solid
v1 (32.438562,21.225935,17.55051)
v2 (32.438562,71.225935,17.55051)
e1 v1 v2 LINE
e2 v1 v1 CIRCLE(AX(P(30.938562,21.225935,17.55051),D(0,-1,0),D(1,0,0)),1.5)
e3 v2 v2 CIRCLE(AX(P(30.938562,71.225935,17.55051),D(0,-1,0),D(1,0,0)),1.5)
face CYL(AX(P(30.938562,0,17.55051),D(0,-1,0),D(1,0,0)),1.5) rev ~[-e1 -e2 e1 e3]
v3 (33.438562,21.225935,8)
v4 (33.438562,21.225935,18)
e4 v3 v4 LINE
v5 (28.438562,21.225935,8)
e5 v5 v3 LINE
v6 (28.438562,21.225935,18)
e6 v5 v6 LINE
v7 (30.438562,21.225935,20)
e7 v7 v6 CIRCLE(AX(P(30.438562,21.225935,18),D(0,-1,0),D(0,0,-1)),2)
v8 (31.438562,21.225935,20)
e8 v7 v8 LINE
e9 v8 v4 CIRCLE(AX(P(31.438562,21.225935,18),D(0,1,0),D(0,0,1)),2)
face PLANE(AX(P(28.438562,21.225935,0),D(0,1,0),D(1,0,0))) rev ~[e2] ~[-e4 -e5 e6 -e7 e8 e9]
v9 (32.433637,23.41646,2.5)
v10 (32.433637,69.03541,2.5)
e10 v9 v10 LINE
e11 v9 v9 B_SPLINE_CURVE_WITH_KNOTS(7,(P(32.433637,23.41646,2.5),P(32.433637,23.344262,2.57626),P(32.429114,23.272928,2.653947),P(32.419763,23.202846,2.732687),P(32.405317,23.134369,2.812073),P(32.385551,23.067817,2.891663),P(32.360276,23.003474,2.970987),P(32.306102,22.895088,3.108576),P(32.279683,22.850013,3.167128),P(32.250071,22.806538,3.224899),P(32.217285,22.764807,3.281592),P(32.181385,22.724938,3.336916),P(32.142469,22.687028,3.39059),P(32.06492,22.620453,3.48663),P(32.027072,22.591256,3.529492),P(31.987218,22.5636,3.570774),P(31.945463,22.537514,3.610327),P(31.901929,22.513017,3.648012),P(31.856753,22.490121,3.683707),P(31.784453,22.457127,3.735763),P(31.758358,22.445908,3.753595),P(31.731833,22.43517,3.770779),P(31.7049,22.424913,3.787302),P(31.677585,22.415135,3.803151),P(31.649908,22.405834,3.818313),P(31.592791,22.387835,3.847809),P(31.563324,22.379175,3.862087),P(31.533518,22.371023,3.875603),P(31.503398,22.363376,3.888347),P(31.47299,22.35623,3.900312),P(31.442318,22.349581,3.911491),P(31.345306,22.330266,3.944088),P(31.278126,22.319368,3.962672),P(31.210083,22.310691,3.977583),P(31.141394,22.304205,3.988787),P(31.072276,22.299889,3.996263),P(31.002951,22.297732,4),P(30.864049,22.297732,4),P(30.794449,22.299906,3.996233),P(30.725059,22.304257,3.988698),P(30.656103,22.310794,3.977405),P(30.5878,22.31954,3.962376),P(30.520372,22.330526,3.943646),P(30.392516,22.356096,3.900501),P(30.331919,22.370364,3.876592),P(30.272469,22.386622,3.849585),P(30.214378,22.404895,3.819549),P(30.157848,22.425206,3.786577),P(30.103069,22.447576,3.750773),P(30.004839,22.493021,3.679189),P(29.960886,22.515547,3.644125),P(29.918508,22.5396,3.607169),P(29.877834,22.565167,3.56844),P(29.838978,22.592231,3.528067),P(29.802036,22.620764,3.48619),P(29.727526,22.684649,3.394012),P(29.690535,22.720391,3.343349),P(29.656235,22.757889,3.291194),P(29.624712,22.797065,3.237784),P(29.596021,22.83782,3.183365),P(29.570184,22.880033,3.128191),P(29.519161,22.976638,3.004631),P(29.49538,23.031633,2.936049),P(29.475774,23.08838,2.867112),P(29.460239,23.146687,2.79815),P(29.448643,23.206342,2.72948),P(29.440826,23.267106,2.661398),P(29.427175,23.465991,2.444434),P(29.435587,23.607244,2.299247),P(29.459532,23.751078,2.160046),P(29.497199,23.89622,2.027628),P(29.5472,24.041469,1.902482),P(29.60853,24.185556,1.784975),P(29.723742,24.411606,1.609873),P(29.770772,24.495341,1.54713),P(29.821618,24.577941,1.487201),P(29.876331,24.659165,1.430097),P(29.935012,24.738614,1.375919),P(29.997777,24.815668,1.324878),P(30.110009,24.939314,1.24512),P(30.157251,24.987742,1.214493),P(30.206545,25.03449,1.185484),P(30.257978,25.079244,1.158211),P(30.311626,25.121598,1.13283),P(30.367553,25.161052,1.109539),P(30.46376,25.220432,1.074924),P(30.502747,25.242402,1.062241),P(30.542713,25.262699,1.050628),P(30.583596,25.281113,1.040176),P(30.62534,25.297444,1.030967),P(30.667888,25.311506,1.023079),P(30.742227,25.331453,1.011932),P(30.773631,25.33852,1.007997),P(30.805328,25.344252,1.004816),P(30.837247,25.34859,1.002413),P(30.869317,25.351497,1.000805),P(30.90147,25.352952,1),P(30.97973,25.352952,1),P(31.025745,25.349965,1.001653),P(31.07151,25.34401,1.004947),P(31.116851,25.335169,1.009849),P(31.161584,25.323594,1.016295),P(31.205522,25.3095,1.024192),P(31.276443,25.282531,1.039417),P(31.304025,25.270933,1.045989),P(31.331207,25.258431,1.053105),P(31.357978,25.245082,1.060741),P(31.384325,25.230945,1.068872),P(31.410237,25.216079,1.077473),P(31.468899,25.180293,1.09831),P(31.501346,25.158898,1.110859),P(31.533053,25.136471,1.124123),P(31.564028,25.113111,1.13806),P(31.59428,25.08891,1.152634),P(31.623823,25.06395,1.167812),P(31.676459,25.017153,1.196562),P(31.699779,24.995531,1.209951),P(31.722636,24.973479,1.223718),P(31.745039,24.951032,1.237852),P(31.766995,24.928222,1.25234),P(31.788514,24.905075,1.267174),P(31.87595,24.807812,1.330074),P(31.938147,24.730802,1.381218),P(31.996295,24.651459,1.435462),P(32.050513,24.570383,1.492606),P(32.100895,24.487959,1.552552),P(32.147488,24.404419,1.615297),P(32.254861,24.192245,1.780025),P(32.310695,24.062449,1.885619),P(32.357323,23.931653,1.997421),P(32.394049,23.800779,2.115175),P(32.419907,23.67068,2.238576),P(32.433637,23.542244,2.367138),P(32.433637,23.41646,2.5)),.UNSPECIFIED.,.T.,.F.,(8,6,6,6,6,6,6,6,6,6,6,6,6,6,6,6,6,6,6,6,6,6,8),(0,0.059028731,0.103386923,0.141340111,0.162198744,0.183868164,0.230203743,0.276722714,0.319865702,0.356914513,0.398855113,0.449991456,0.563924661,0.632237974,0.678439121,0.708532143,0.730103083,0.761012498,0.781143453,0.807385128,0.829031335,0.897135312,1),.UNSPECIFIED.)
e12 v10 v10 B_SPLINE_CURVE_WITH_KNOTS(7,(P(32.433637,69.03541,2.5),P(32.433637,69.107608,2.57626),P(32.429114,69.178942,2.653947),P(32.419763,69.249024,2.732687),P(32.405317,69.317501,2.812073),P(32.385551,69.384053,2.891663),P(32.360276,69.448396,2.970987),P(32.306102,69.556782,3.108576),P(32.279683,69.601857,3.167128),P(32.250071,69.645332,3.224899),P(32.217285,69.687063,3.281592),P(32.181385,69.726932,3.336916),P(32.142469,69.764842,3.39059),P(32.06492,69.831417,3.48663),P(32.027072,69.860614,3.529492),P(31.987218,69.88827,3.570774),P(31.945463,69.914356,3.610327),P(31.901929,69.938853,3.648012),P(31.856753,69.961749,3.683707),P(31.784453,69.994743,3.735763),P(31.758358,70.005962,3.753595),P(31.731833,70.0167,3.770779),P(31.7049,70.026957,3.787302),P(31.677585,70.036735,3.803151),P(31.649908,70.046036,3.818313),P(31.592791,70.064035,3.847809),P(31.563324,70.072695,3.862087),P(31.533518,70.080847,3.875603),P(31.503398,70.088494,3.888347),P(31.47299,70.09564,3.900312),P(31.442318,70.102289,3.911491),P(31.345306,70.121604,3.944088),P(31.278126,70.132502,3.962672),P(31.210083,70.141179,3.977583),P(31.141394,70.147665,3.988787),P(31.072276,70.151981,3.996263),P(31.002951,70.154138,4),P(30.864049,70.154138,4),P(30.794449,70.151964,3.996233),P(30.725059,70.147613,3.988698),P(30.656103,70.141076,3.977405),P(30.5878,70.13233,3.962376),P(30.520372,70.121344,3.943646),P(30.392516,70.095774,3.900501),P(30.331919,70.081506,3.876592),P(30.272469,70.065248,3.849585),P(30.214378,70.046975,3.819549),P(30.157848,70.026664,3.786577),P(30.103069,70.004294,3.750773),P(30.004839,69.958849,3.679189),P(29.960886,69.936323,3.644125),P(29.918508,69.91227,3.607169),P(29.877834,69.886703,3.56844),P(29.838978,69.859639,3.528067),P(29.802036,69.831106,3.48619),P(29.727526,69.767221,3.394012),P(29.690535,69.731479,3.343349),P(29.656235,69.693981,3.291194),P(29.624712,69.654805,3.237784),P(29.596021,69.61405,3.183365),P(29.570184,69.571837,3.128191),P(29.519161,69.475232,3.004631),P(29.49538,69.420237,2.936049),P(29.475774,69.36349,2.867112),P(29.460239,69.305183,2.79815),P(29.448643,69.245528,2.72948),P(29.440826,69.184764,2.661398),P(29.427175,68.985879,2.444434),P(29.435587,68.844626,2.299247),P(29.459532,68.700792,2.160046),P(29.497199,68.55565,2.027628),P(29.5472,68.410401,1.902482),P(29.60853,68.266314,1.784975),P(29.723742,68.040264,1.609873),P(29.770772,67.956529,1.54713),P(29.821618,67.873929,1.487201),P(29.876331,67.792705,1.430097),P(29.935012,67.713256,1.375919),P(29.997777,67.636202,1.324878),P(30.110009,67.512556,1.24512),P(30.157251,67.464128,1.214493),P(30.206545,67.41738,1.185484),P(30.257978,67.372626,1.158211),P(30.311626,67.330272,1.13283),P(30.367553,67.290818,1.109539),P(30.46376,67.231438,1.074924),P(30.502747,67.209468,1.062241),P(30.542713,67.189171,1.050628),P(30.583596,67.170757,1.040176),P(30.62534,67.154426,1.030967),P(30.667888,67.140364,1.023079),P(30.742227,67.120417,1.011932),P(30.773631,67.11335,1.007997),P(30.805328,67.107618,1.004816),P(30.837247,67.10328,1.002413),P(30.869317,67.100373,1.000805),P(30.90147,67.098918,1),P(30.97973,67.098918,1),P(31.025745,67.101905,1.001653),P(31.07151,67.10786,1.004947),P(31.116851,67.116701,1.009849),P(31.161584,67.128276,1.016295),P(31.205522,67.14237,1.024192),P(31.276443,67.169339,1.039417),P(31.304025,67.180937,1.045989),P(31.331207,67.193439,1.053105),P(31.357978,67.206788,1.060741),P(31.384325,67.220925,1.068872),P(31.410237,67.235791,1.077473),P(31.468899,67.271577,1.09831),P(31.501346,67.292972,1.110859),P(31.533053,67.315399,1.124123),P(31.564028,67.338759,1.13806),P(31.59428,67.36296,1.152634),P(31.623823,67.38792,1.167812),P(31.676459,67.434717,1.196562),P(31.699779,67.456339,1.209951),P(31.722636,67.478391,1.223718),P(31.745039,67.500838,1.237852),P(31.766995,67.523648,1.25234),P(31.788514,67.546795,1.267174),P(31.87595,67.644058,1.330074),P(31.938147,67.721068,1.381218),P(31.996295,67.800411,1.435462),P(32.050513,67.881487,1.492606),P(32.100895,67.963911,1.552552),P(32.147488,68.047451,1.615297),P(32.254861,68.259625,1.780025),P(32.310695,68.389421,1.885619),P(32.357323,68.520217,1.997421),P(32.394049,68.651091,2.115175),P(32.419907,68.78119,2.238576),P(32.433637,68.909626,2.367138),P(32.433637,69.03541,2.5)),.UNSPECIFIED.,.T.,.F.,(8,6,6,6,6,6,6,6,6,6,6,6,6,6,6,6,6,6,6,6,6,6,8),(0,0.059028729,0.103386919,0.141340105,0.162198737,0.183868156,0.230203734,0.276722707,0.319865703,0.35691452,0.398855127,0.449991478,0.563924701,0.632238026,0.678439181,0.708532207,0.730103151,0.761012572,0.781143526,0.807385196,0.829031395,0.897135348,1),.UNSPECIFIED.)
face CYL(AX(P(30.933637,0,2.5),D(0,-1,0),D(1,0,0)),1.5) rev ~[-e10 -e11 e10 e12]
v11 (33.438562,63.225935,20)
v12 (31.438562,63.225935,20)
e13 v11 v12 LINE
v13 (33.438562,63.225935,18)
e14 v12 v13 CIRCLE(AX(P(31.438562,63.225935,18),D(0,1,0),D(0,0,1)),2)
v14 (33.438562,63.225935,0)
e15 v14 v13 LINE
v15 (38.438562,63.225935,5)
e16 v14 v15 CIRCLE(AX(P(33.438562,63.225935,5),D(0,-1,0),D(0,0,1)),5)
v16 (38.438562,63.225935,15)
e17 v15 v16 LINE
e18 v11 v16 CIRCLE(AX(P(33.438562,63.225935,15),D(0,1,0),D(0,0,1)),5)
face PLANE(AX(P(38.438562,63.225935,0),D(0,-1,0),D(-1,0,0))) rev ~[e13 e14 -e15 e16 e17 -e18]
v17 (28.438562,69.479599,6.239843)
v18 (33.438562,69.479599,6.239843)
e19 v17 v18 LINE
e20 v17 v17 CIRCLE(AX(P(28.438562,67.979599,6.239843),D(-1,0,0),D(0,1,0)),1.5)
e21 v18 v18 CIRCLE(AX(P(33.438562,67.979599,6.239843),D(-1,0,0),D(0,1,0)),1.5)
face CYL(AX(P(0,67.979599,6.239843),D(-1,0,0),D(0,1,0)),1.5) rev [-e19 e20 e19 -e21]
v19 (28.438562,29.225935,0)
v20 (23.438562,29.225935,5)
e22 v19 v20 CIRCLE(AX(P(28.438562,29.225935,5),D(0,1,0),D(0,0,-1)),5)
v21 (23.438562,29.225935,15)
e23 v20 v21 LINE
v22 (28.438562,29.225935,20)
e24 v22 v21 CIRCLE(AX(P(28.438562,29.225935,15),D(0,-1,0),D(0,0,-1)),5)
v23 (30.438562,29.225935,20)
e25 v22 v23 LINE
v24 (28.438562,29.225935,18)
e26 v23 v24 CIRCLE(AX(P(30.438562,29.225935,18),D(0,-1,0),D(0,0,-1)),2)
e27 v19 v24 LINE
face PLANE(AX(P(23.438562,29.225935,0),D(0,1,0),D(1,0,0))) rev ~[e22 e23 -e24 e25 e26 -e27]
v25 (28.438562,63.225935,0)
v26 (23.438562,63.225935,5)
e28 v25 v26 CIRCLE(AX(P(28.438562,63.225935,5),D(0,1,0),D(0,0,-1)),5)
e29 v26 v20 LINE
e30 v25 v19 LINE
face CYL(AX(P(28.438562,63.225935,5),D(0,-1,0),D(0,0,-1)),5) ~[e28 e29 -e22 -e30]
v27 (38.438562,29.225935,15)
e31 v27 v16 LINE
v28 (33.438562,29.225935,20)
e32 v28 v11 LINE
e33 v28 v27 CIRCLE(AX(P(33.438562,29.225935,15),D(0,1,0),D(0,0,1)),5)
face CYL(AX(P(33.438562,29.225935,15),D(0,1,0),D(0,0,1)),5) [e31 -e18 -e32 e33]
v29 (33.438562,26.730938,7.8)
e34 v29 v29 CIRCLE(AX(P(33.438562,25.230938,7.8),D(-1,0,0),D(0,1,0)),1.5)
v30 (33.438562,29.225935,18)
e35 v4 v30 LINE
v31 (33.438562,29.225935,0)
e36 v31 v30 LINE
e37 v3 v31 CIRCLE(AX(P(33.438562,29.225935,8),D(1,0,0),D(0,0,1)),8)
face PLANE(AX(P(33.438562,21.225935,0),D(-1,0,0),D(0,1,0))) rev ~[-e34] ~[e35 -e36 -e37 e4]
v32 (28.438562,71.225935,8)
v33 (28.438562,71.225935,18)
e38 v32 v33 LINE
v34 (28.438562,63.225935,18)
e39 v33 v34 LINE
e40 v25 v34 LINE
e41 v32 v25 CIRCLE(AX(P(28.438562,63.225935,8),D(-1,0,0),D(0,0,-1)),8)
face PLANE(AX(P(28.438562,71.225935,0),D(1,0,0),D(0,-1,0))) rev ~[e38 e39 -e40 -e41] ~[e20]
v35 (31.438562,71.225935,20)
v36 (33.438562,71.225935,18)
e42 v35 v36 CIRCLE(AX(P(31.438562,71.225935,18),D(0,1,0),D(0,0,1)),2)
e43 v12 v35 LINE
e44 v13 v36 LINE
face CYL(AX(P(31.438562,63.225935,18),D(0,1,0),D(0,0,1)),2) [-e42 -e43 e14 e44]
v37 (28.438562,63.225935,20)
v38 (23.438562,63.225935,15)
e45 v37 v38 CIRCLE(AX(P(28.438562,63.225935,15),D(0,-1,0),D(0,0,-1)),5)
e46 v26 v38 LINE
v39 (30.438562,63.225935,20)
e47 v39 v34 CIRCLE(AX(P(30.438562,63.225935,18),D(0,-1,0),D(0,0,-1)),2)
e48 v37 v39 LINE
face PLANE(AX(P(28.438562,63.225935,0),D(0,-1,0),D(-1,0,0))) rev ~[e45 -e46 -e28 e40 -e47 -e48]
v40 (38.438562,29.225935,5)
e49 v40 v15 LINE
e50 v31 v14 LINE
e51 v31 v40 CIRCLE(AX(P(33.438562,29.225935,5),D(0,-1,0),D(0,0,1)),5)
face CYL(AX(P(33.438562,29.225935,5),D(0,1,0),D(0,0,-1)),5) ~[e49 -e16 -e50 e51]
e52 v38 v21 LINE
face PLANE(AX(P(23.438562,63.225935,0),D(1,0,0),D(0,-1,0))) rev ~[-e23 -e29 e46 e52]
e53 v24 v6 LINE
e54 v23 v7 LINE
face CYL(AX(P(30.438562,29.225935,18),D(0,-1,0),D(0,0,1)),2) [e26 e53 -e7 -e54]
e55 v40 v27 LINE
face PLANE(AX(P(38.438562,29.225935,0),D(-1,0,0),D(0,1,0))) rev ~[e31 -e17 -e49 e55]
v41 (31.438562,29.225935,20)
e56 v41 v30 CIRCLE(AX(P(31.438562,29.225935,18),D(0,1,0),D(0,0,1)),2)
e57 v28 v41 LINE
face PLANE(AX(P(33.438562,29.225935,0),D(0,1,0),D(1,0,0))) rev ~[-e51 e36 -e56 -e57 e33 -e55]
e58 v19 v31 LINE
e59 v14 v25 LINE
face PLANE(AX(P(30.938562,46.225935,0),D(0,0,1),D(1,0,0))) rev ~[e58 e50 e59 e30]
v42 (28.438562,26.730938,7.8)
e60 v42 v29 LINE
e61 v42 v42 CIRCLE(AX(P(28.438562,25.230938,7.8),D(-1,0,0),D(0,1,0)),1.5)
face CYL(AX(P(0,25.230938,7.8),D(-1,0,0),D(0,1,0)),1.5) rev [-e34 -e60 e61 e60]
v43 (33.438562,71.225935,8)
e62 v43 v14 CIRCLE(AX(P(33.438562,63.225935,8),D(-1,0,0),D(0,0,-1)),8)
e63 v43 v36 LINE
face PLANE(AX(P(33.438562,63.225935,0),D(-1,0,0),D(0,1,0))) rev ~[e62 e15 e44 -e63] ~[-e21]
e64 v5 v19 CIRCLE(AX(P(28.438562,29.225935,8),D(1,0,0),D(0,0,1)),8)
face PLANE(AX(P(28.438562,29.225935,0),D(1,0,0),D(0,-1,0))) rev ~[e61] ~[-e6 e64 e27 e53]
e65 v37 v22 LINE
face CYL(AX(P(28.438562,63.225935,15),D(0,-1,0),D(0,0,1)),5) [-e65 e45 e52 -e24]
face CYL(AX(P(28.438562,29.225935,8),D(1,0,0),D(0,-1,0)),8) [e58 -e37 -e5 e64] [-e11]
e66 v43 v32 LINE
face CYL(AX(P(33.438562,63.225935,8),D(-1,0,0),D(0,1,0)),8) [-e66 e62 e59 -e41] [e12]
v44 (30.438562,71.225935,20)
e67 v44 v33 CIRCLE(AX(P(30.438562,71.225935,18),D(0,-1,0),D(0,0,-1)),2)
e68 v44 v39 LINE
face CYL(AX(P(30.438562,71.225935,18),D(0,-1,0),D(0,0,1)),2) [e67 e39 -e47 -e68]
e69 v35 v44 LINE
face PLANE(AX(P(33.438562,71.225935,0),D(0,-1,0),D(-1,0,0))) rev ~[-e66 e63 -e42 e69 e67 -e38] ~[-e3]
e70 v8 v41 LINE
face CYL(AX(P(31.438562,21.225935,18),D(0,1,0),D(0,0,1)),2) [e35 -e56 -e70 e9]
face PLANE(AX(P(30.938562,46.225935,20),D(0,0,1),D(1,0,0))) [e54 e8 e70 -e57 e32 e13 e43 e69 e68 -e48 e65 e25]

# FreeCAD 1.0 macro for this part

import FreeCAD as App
import Part
import Sketcher
Q = App.Units.Quantity


def edges_at(feature, points):
    """Names of the edges that pass closest to the given points."""
    edges = feature.Shape.Edges
    near = lambda p: min(range(len(edges)), key=lambda i: edges[i].distToShape(Part.Vertex(*p))[0])
    return sorted({f"Edge{near(p) + 1}" for p in points})


def add_polygon(sketch, points):
    """Adds a closed chain of lines whose ends are joined by coincident constraints."""
    first, n = sketch.GeometryCount, len(points)
    for a, b in zip(points, points[1:] + points[:1]):
        sketch.addGeometry(Part.LineSegment(App.Vector(*a, 0), App.Vector(*b, 0)), False)
    for i in range(n):
        sketch.addConstraint(Sketcher.Constraint("Coincident", first + i, 2, first + (i + 1) % n, 1))

doc = App.newDocument("Part")
params = doc.addObject("Spreadsheet::Sheet", "Params")
for row, (alias, value) in enumerate([
    ("sketch1_width", "5 mm"),
    ("sketch1_height", "8 mm"),
    ("sketch1_height2", "34 mm"),
    ("pad1_length", "20 mm"),
    ("fillet_radius", "8 mm"),
    ("fillet2_radius", "5 mm"),
    ("fillet3_radius", "2 mm"),
    ("sketch2_diameter", "3 mm"),
    ("pocket1_length", "50 mm"),
    ("sketch3_diameter", "3 mm"),
    ("pocket2_length", "82.9 mm"),
], start=1):
    params.set(f"A{row}", alias)
    params.set(f"B{row}", "=" + value)
    params.setAlias(f"B{row}", alias)

body = doc.addObject("PartDesign::Body", "Body")

# Sketch on XY plane
sketch1 = body.newObject("Sketcher::SketchObject", "Sketch")
sketch1.AttachmentSupport = (doc.getObject("XY_Plane"), [""])
sketch1.MapMode = "FlatFace"
add_polygon(sketch1, [(33.4, 71.2), (28.4, 71.2), (28.4, 63.2), (23.4, 63.2), (23.4, 29.2), (28.4, 29.2), (28.4, 21.2), (33.4, 21.2), (33.4, 29.2), (38.4, 29.2), (38.4, 63.2), (33.4, 63.2)])  # lines 0-11
sketch1.addConstraint([
    Sketcher.Constraint("Horizontal", 0),
    Sketcher.Constraint("Vertical", 1),
    Sketcher.Constraint("Horizontal", 2),
    Sketcher.Constraint("Vertical", 3),
    Sketcher.Constraint("Horizontal", 4),
    Sketcher.Constraint("Vertical", 5),
    Sketcher.Constraint("Horizontal", 6),
    Sketcher.Constraint("Vertical", 7),
    Sketcher.Constraint("Horizontal", 8),
    Sketcher.Constraint("Vertical", 9),
    Sketcher.Constraint("Horizontal", 10),
    Sketcher.Constraint("Vertical", 11),
    Sketcher.Constraint("Horizontal", 4, 2, 7, 2),
    Sketcher.Constraint("Horizontal", 2, 2, 9, 2),
    Sketcher.Constraint("Vertical", 1, 2, 4, 2),
    Sketcher.Constraint("Vertical", 7, 2, 10, 2),
    Sketcher.Constraint("Equal", 0, 2),
    Sketcher.Constraint("Equal", 6, 8),
    Sketcher.Constraint("Equal", 1, 5),
    Sketcher.Constraint("DistanceX", 0, 2, 0, 1, Q("5 mm")),
    Sketcher.Constraint("DistanceY", 1, 2, 1, 1, Q("8 mm")),
    Sketcher.Constraint("DistanceY", 3, 2, 3, 1, Q("34 mm")),
    Sketcher.Constraint("DistanceX", -1, 1, 6, 2, Q("33.438562 mm")),
    Sketcher.Constraint("DistanceY", -1, 1, 0, 2, Q("71.225935 mm")),
])
sketch1.setExpression("Constraints[31]", "Params.sketch1_width")
sketch1.setExpression("Constraints[32]", "Params.sketch1_height")
sketch1.setExpression("Constraints[33]", "Params.sketch1_height2")
pad1 = body.newObject("PartDesign::Pad", "Pad")
pad1.Profile = sketch1
pad1.setExpression("Length", "Params.pad1_length")
doc.recompute()

fillet = body.newObject("PartDesign::Fillet", "Fillet")
fillet.Base = (pad1, edges_at(pad1, [(30.939, 21.226, 0), (30.939, 71.226, 0)]))
fillet.setExpression("Radius", "Params.fillet_radius")
doc.recompute()

fillet2 = body.newObject("PartDesign::Fillet", "Fillet001")
fillet2.Base = (fillet, edges_at(fillet, [
    (38.439, 46.226, 20),
    (23.439, 46.226, 20),
    (38.439, 46.226, 0),
    (23.439, 46.226, 0),
]))
fillet2.setExpression("Radius", "Params.fillet2_radius")
doc.recompute()

fillet3 = body.newObject("PartDesign::Fillet", "Fillet002")
fillet3.Base = (fillet2, edges_at(fillet2, [
    (33.439, 25.226, 20),
    (33.439, 67.226, 20),
    (28.439, 67.226, 20),
    (28.439, 25.226, 20),
]))
fillet3.setExpression("Radius", "Params.fillet3_radius")

# Sketch on YZ plane
sketch2 = body.newObject("Sketcher::SketchObject", "Sketch001")
sketch2.AttachmentSupport = (doc.getObject("YZ_Plane"), [""])
sketch2.MapMode = "FlatFace"
sketch2.addGeometry([
    Part.Circle(App.Vector(68, 6.2, 0), App.Vector(0, 0, 1), 1.5),
    Part.Circle(App.Vector(25.2, 7.8, 0), App.Vector(0, 0, 1), 1.5),
], False)
sketch2.addConstraint([
    Sketcher.Constraint("Equal", 0, 1),
    Sketcher.Constraint("Diameter", 0, Q("3 mm")),
    Sketcher.Constraint("DistanceY", -1, 1, 1, 3, Q("7.8 mm")),
    Sketcher.Constraint("DistanceX", -1, 1, 0, 3, Q("67.979599 mm")),
    Sketcher.Constraint("DistanceX", 1, 3, 0, 3, Q("42.748661 mm")),
    Sketcher.Constraint("DistanceY", -1, 1, 0, 3, Q("6.239843 mm")),
])
sketch2.setExpression("Constraints[1]", "Params.sketch2_diameter")
pocket1 = body.newObject("PartDesign::Pocket", "Pocket")
pocket1.Profile = sketch2
pocket1.setExpression("Length", "Params.pocket1_length")
pocket1.Reversed = True

# Sketch on XZ plane
sketch3 = body.newObject("Sketcher::SketchObject", "Sketch002")
sketch3.AttachmentSupport = (doc.getObject("XZ_Plane"), [""])
sketch3.MapMode = "FlatFace"
sketch3.addGeometry([
    Part.Circle(App.Vector(30.9, 17.6, 0), App.Vector(0, 0, 1), 1.5),
    Part.Circle(App.Vector(30.9, 2.5, 0), App.Vector(0, 0, 1), 1.5),
], False)
sketch3.addConstraint([
    Sketcher.Constraint("Equal", 0, 1),
    Sketcher.Constraint("Diameter", 0, Q("3 mm")),
    Sketcher.Constraint("DistanceY", -1, 1, 1, 3, Q("2.5 mm")),
    Sketcher.Constraint("DistanceY", -1, 1, 0, 3, Q("17.55051 mm")),
    Sketcher.Constraint("DistanceX", -1, 1, 0, 3, Q("30.938562 mm")),
    Sketcher.Constraint("DistanceX", -1, 1, 1, 3, Q("30.933637 mm")),
])
sketch3.setExpression("Constraints[1]", "Params.sketch3_diameter")
pocket2 = body.newObject("PartDesign::Pocket", "Pocket001")
pocket2.Profile = sketch3
pocket2.setExpression("Length", "Params.pocket2_length")

doc.recompute()
